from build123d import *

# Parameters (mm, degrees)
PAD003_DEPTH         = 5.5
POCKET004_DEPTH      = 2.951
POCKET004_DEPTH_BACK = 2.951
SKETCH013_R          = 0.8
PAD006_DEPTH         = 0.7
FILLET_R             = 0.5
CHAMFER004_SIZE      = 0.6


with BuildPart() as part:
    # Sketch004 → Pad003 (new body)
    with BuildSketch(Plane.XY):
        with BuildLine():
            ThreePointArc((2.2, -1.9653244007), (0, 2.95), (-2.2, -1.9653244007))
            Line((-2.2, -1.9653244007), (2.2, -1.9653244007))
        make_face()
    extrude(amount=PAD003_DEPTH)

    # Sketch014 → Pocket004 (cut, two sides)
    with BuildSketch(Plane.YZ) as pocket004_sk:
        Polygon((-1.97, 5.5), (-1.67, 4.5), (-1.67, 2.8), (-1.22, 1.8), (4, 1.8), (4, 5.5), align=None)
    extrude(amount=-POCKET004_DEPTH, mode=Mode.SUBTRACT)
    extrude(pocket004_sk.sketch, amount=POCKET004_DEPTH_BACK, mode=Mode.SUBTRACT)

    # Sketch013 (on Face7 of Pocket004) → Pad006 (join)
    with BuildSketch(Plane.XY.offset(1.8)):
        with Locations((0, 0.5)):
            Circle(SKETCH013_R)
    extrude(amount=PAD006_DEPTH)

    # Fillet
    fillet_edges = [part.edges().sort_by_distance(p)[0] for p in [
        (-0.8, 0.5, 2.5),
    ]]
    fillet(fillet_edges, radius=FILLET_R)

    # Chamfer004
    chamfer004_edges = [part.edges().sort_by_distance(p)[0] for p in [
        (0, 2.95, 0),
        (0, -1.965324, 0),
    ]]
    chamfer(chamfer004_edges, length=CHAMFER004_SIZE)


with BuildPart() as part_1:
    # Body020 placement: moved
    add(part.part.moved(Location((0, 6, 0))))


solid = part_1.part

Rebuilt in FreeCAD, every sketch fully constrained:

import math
import FreeCAD as App
import Part
import Sketcher

V = App.Vector
Q = App.Units.Quantity


def edges_at(feature, points):
    """Names of the edges that pass closest to the given points."""
    edges = feature.Shape.Edges
    near = lambda p: min(range(len(edges)), key=lambda i: edges[i].distToShape(Part.Vertex(*p))[0])
    return sorted({f"Edge{near(p) + 1}" for p in points})

doc = App.newDocument("Part")
params = doc.addObject("Spreadsheet::Sheet", "Params")
for row, (alias, value) in enumerate([
    ("sketch1_radius", "2.95 mm"),
    ("sketch1_width", "4.4 mm"),
    ("pad1_length", "5.5 mm"),
    ("sketch2_height", "1.7 mm"),
    ("sketch2_height2", "3.7 mm"),
    ("sketch2_width", "5.22 mm"),
    ("sketch2_width2", "5.97 mm"),
    ("sketch3_diameter", "1.6 mm"),
    ("pad2_length", "0.7 mm"),
    ("fillet_radius", "0.5 mm"),
    ("chamfer_size", "0.6 mm"),
], start=1):
    params.set(f"A{row}", alias)
    params.set(f"B{row}", "=" + value)
    params.setAlias(f"B{row}", alias)

body = doc.addObject("PartDesign::Body", "Body")

# Sketch on XY plane
sketch1 = body.newObject("Sketcher::SketchObject", "Sketch")
sketch1.AttachmentSupport = (doc.getObject("XY_Plane"), [""])
sketch1.MapMode = "FlatFace"
sketch1.addGeometry([
    Part.ArcOfCircle(Part.Circle(V(0, 0, 0), V(0, 0, 1), 2.95), math.radians(-41.775348), math.radians(221.775348)),
    Part.LineSegment(V(-2.2, -1.965324, 0), V(2.2, -1.965324, 0)),
], False)
sketch1.addConstraint([
    Sketcher.Constraint("Coincident", 0, 1, 1, 2),
    Sketcher.Constraint("Coincident", 1, 1, 0, 2),
    Sketcher.Constraint("Horizontal", 1),
    Sketcher.Constraint("Coincident", 0, 3, -1, 1),
    Sketcher.Constraint("Radius", 0, Q("2.95 mm")),
    Sketcher.Constraint("DistanceX", 1, 1, 1, 2, Q("4.4 mm")),
])
sketch1.setExpression("Constraints[4]", "Params.sketch1_radius")
sketch1.setExpression("Constraints[5]", "Params.sketch1_width")
pad1 = body.newObject("PartDesign::Pad", "Pad")
pad1.Profile = sketch1
pad1.setExpression("Length", "Params.pad1_length")

# Sketch on YZ plane
sketch2 = body.newObject("Sketcher::SketchObject", "Sketch001")
sketch2.AttachmentSupport = (doc.getObject("YZ_Plane"), [""])
sketch2.MapMode = "FlatFace"
sketch2.addGeometry([
    Part.LineSegment(V(-1.97, 5.5, 0), V(-1.67, 4.5, 0)),  # 0
    Part.LineSegment(V(-1.67, 4.5, 0), V(-1.67, 2.8, 0)),  # 1
    Part.LineSegment(V(-1.67, 2.8, 0), V(-1.22, 1.8, 0)),  # 2
    Part.LineSegment(V(-1.22, 1.8, 0), V(4, 1.8, 0)),  # 3
    Part.LineSegment(V(4, 1.8, 0), V(4, 5.5, 0)),  # 4
    Part.LineSegment(V(4, 5.5, 0), V(-1.97, 5.5, 0)),  # 5
], False)
sketch2.addConstraint([
    Sketcher.Constraint("Coincident", 0, 2, 1, 1),
    Sketcher.Constraint("Coincident", 1, 2, 2, 1),
    Sketcher.Constraint("Coincident", 2, 2, 3, 1),
    Sketcher.Constraint("Coincident", 3, 2, 4, 1),
    Sketcher.Constraint("Coincident", 4, 2, 5, 1),
    Sketcher.Constraint("Coincident", 5, 2, 0, 1),
    Sketcher.Constraint("Vertical", 1),
    Sketcher.Constraint("Horizontal", 3),
    Sketcher.Constraint("Vertical", 4),
    Sketcher.Constraint("Horizontal", 5),
    Sketcher.Constraint("DistanceY", 1, 2, 1, 1, Q("1.7 mm")),
    Sketcher.Constraint("DistanceY", 4, 1, 4, 2, Q("3.7 mm")),
    Sketcher.Constraint("DistanceX", -1, 1, 3, 2, Q("4 mm")),
    Sketcher.Constraint("DistanceY", 2, 2, 1, 2, Q("1 mm")),
    Sketcher.Constraint("DistanceX", 3, 1, 3, 2, Q("5.22 mm")),
    Sketcher.Constraint("DistanceX", 5, 2, 5, 1, Q("5.97 mm")),
    Sketcher.Constraint("DistanceY", -1, 1, 0, 2, Q("4.5 mm")),
    Sketcher.Constraint("DistanceX", 5, 2, 0, 2, Q("0.3 mm")),
])
sketch2.setExpression("Constraints[10]", "Params.sketch2_height")
sketch2.setExpression("Constraints[11]", "Params.sketch2_height2")
sketch2.setExpression("Constraints[14]", "Params.sketch2_width")
sketch2.setExpression("Constraints[15]", "Params.sketch2_width2")
pocket1 = body.newObject("PartDesign::Pocket", "Pocket")
pocket1.Profile = sketch2
pocket1.Type = "ThroughAll"
pocket1.Midplane = True

# Sketch on XY plane
sketch3 = body.newObject("Sketcher::SketchObject", "Sketch002")
sketch3.AttachmentSupport = (doc.getObject("XY_Plane"), [""])
sketch3.MapMode = "FlatFace"
sketch3.AttachmentOffset = App.Placement(V(0, 0, 1.8), App.Rotation())
sketch3.addGeometry(Part.Circle(V(0, 0.5, 0), V(0, 0, 1), 0.8), False)
sketch3.addConstraint([
    Sketcher.Constraint("PointOnObject", 0, 3, -2),
    Sketcher.Constraint("Diameter", 0, Q("1.6 mm")),
    Sketcher.Constraint("DistanceY", -1, 1, 0, 3, Q("0.5 mm")),
])
sketch3.setExpression("Constraints[1]", "Params.sketch3_diameter")
pad2 = body.newObject("PartDesign::Pad", "Pad001")
pad2.Profile = sketch3
pad2.setExpression("Length", "Params.pad2_length")
doc.recompute()

fillet = body.newObject("PartDesign::Fillet", "Fillet")
fillet.Base = (pad2, edges_at(pad2, [(-0.8, 0.5, 2.5)]))
fillet.setExpression("Radius", "Params.fillet_radius")
doc.recompute()

chamfer = body.newObject("PartDesign::Chamfer", "Chamfer")
chamfer.Base = (fillet, edges_at(fillet, [(0, 2.95, 0), (0, -1.965, 0)]))
chamfer.setExpression("Size", "Params.chamfer_size")
body2 = doc.addObject("PartDesign::Body", "Body001")
doc.recompute()

body.Placement = App.Placement(V(0, 6, 0), App.Rotation(V(0, 0, 1), 0))
boolean = body2.newObject("PartDesign::Boolean", "Boolean")
boolean.Type = "Fuse"
boolean.addObjects([body])

doc.recompute()
